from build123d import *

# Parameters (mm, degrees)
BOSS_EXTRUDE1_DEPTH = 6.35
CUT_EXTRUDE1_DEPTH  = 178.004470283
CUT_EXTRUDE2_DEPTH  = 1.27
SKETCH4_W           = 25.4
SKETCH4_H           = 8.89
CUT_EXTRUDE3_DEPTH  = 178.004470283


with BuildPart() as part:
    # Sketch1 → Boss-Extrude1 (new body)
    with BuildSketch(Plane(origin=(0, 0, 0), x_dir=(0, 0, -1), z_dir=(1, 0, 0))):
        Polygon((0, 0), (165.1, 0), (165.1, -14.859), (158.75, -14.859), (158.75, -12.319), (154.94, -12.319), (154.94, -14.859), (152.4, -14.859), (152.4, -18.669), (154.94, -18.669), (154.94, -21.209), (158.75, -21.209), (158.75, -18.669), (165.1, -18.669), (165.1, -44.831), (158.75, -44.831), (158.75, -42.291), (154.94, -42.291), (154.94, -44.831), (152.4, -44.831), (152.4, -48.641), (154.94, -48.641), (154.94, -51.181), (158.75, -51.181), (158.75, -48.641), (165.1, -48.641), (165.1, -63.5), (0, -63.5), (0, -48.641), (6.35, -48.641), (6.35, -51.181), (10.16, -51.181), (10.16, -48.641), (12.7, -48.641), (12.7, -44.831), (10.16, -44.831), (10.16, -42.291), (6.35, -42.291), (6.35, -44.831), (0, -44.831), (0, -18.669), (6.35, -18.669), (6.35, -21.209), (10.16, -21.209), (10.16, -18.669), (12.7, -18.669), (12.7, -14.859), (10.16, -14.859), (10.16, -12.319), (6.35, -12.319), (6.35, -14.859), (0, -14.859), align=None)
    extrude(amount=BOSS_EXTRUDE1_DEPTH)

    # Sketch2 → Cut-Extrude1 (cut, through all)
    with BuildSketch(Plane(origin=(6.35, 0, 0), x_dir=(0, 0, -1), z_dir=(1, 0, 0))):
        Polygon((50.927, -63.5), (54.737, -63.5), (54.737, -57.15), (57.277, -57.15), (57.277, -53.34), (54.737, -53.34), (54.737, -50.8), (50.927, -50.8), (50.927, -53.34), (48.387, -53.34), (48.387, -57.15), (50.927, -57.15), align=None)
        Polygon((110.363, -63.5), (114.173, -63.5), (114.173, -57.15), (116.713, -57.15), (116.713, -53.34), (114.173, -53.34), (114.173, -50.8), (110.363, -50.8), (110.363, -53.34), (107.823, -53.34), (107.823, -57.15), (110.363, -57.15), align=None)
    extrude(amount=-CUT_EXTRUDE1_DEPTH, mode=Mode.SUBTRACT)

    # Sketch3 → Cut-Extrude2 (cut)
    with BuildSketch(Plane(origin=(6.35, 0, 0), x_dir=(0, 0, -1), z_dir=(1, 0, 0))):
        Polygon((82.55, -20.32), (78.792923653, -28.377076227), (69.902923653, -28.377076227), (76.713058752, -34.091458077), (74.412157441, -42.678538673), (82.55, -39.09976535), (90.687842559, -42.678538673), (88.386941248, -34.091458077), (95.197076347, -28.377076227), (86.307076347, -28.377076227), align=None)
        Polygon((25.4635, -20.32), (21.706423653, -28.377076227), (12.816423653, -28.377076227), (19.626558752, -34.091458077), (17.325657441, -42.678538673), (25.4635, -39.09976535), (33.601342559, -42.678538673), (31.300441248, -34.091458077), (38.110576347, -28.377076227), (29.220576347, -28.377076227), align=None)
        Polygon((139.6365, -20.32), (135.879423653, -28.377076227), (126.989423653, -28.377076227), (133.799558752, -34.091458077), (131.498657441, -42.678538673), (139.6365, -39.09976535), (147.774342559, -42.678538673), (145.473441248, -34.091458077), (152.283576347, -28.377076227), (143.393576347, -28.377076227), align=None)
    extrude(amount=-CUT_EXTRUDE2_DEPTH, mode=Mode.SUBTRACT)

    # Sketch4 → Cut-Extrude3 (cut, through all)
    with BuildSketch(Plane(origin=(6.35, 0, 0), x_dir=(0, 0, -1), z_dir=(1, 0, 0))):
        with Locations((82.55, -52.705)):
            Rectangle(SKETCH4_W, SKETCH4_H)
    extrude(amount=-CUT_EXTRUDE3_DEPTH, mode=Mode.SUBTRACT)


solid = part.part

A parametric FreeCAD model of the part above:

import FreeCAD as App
import Part
import Sketcher

V = App.Vector
Q = App.Units.Quantity

doc = App.newDocument("Part")
body = doc.addObject("PartDesign::Body", "Body")

sketch1 = body.newObject("Sketcher::SketchObject", "Sketch")
sketch1.AttachmentSupport = (doc.getObject("YZ_Plane"), [""])
sketch1.MapMode = "FlatFace"
sketch1.addGeometry([
    Part.LineSegment(V(0, -165.1, 0), V(0, 0, 0)),
    Part.LineSegment(V(0, 0, 0), V(-14.9, 0, 0)),
    Part.LineSegment(V(-14.9, 0, 0), V(-14.9, -6.3, 0)),
    Part.LineSegment(V(-14.9, -6.3, 0), V(-12.3, -6.3, 0)),
    Part.LineSegment(V(-12.3, -6.3, 0), V(-12.3, -10.2, 0)),
    Part.LineSegment(V(-12.3, -10.2, 0), V(-14.9, -10.2, 0)),
    Part.LineSegment(V(-14.9, -10.2, 0), V(-14.9, -12.7, 0)),
    Part.LineSegment(V(-14.9, -12.7, 0), V(-18.7, -12.7, 0)),
    Part.LineSegment(V(-18.7, -12.7, 0), V(-18.7, -10.2, 0)),
    Part.LineSegment(V(-18.7, -10.2, 0), V(-21.2, -10.2, 0)),
    Part.LineSegment(V(-21.2, -10.2, 0), V(-21.2, -6.3, 0)),
    Part.LineSegment(V(-21.2, -6.3, 0), V(-18.7, -6.3, 0)),
    Part.LineSegment(V(-18.7, -6.3, 0), V(-18.7, 0, 0)),
    Part.LineSegment(V(-18.7, 0, 0), V(-44.8, 0, 0)),
    Part.LineSegment(V(-44.8, 0, 0), V(-44.8, -6.3, 0)),
    Part.LineSegment(V(-44.8, -6.3, 0), V(-42.3, -6.3, 0)),
    Part.LineSegment(V(-42.3, -6.3, 0), V(-42.3, -10.2, 0)),
    Part.LineSegment(V(-42.3, -10.2, 0), V(-44.8, -10.2, 0)),
    Part.LineSegment(V(-44.8, -10.2, 0), V(-44.8, -12.7, 0)),
    Part.LineSegment(V(-44.8, -12.7, 0), V(-48.6, -12.7, 0)),
    Part.LineSegment(V(-48.6, -12.7, 0), V(-48.6, -10.2, 0)),
    Part.LineSegment(V(-48.6, -10.2, 0), V(-51.2, -10.2, 0)),
    Part.LineSegment(V(-51.2, -10.2, 0), V(-51.2, -6.3, 0)),
    Part.LineSegment(V(-51.2, -6.3, 0), V(-48.6, -6.3, 0)),
    Part.LineSegment(V(-48.6, -6.3, 0), V(-48.6, 0, 0)),
    Part.LineSegment(V(-48.6, 0, 0), V(-63.5, 0, 0)),
    Part.LineSegment(V(-63.5, 0, 0), V(-63.5, -165.1, 0)),
    Part.LineSegment(V(-63.5, -165.1, 0), V(-48.6, -165.1, 0)),
    Part.LineSegment(V(-48.6, -165.1, 0), V(-48.6, -158.8, 0)),
    Part.LineSegment(V(-48.6, -158.8, 0), V(-51.2, -158.8, 0)),
    Part.LineSegment(V(-51.2, -158.8, 0), V(-51.2, -154.9, 0)),
    Part.LineSegment(V(-51.2, -154.9, 0), V(-48.6, -154.9, 0)),
    Part.LineSegment(V(-48.6, -154.9, 0), V(-48.6, -152.4, 0)),
    Part.LineSegment(V(-48.6, -152.4, 0), V(-44.8, -152.4, 0)),
    Part.LineSegment(V(-44.8, -152.4, 0), V(-44.8, -154.9, 0)),
    Part.LineSegment(V(-44.8, -154.9, 0), V(-42.3, -154.9, 0)),
    Part.LineSegment(V(-42.3, -154.9, 0), V(-42.3, -158.8, 0)),
    Part.LineSegment(V(-42.3, -158.8, 0), V(-44.8, -158.8, 0)),
    Part.LineSegment(V(-44.8, -158.8, 0), V(-44.8, -165.1, 0)),
    Part.LineSegment(V(-44.8, -165.1, 0), V(-18.7, -165.1, 0)),
    Part.LineSegment(V(-18.7, -165.1, 0), V(-18.7, -158.8, 0)),
    Part.LineSegment(V(-18.7, -158.8, 0), V(-21.2, -158.8, 0)),
    Part.LineSegment(V(-21.2, -158.8, 0), V(-21.2, -154.9, 0)),
    Part.LineSegment(V(-21.2, -154.9, 0), V(-18.7, -154.9, 0)),
    Part.LineSegment(V(-18.7, -154.9, 0), V(-18.7, -152.4, 0)),
    Part.LineSegment(V(-18.7, -152.4, 0), V(-14.9, -152.4, 0)),
    Part.LineSegment(V(-14.9, -152.4, 0), V(-14.9, -154.9, 0)),
    Part.LineSegment(V(-14.9, -154.9, 0), V(-12.3, -154.9, 0)),
    Part.LineSegment(V(-12.3, -154.9, 0), V(-12.3, -158.8, 0)),
    Part.LineSegment(V(-12.3, -158.8, 0), V(-14.9, -158.8, 0)),
    Part.LineSegment(V(-14.9, -158.8, 0), V(-14.9, -165.1, 0)),
    Part.LineSegment(V(-14.9, -165.1, 0), V(0, -165.1, 0)),
], False)
sketch1.addConstraint([
    Sketcher.Constraint("Coincident", 0, 2, 1, 1),
    Sketcher.Constraint("Coincident", 1, 2, 2, 1),
    Sketcher.Constraint("Coincident", 2, 2, 3, 1),
    Sketcher.Constraint("Coincident", 3, 2, 4, 1),
    Sketcher.Constraint("Coincident", 4, 2, 5, 1),
    Sketcher.Constraint("Coincident", 5, 2, 6, 1),
    Sketcher.Constraint("Coincident", 6, 2, 7, 1),
    Sketcher.Constraint("Coincident", 7, 2, 8, 1),
    Sketcher.Constraint("Coincident", 8, 2, 9, 1),
    Sketcher.Constraint("Coincident", 9, 2, 10, 1),
    Sketcher.Constraint("Coincident", 10, 2, 11, 1),
    Sketcher.Constraint("Coincident", 11, 2, 12, 1),
    Sketcher.Constraint("Coincident", 12, 2, 13, 1),
    Sketcher.Constraint("Coincident", 13, 2, 14, 1),
    Sketcher.Constraint("Coincident", 14, 2, 15, 1),
    Sketcher.Constraint("Coincident", 15, 2, 16, 1),
    Sketcher.Constraint("Coincident", 16, 2, 17, 1),
    Sketcher.Constraint("Coincident", 17, 2, 18, 1),
    Sketcher.Constraint("Coincident", 18, 2, 19, 1),
    Sketcher.Constraint("Coincident", 19, 2, 20, 1),
    Sketcher.Constraint("Coincident", 20, 2, 21, 1),
    Sketcher.Constraint("Coincident", 21, 2, 22, 1),
    Sketcher.Constraint("Coincident", 22, 2, 23, 1),
    Sketcher.Constraint("Coincident", 23, 2, 24, 1),
    Sketcher.Constraint("Coincident", 24, 2, 25, 1),
    Sketcher.Constraint("Coincident", 25, 2, 26, 1),
    Sketcher.Constraint("Coincident", 26, 2, 27, 1),
    Sketcher.Constraint("Coincident", 27, 2, 28, 1),
    Sketcher.Constraint("Coincident", 28, 2, 29, 1),
    Sketcher.Constraint("Coincident", 29, 2, 30, 1),
    Sketcher.Constraint("Coincident", 30, 2, 31, 1),
    Sketcher.Constraint("Coincident", 31, 2, 32, 1),
    Sketcher.Constraint("Coincident", 32, 2, 33, 1),
    Sketcher.Constraint("Coincident", 33, 2, 34, 1),
    Sketcher.Constraint("Coincident", 34, 2, 35, 1),
    Sketcher.Constraint("Coincident", 35, 2, 36, 1),
    Sketcher.Constraint("Coincident", 36, 2, 37, 1),
    Sketcher.Constraint("Coincident", 37, 2, 38, 1),
    Sketcher.Constraint("Coincident", 38, 2, 39, 1),
    Sketcher.Constraint("Coincident", 39, 2, 40, 1),
    Sketcher.Constraint("Coincident", 40, 2, 41, 1),
    Sketcher.Constraint("Coincident", 41, 2, 42, 1),
    Sketcher.Constraint("Coincident", 42, 2, 43, 1),
    Sketcher.Constraint("Coincident", 43, 2, 44, 1),
    Sketcher.Constraint("Coincident", 44, 2, 45, 1),
    Sketcher.Constraint("Coincident", 45, 2, 46, 1),
    Sketcher.Constraint("Coincident", 46, 2, 47, 1),
    Sketcher.Constraint("Coincident", 47, 2, 48, 1),
    Sketcher.Constraint("Coincident", 48, 2, 49, 1),
    Sketcher.Constraint("Coincident", 49, 2, 50, 1),
    Sketcher.Constraint("Coincident", 50, 2, 51, 1),
    Sketcher.Constraint("Coincident", 51, 2, 0, 1),
    Sketcher.Constraint("Vertical", 0),
    Sketcher.Constraint("Horizontal", 1),
    Sketcher.Constraint("Vertical", 2),
    Sketcher.Constraint("Horizontal", 3),
    Sketcher.Constraint("Vertical", 4),
    Sketcher.Constraint("Horizontal", 5),
    Sketcher.Constraint("Vertical", 6),
    Sketcher.Constraint("Horizontal", 7),
    Sketcher.Constraint("Vertical", 8),
    Sketcher.Constraint("Horizontal", 9),
    Sketcher.Constraint("Vertical", 10),
    Sketcher.Constraint("Horizontal", 11),
    Sketcher.Constraint("Vertical", 12),
    Sketcher.Constraint("Horizontal", 13),
    Sketcher.Constraint("Vertical", 14),
    Sketcher.Constraint("Horizontal", 15),
    Sketcher.Constraint("Vertical", 16),
    Sketcher.Constraint("Horizontal", 17),
    Sketcher.Constraint("Vertical", 18),
    Sketcher.Constraint("Horizontal", 19),
    Sketcher.Constraint("Vertical", 20),
    Sketcher.Constraint("Horizontal", 21),
    Sketcher.Constraint("Vertical", 22),
    Sketcher.Constraint("Horizontal", 23),
    Sketcher.Constraint("Vertical", 24),
    Sketcher.Constraint("Horizontal", 25),
    Sketcher.Constraint("Vertical", 26),
    Sketcher.Constraint("Horizontal", 27),
    Sketcher.Constraint("Vertical", 28),
    Sketcher.Constraint("Horizontal", 29),
    Sketcher.Constraint("Vertical", 30),
    Sketcher.Constraint("Horizontal", 31),
    Sketcher.Constraint("Vertical", 32),
    Sketcher.Constraint("Horizontal", 33),
    Sketcher.Constraint("Vertical", 34),
    Sketcher.Constraint("Horizontal", 35),
    Sketcher.Constraint("Vertical", 36),
    Sketcher.Constraint("Horizontal", 37),
    Sketcher.Constraint("Vertical", 38),
    Sketcher.Constraint("Horizontal", 39),
    Sketcher.Constraint("Vertical", 40),
    Sketcher.Constraint("Horizontal", 41),
    Sketcher.Constraint("Vertical", 42),
    Sketcher.Constraint("Horizontal", 43),
    Sketcher.Constraint("Vertical", 44),
    Sketcher.Constraint("Horizontal", 45),
    Sketcher.Constraint("Vertical", 46),
    Sketcher.Constraint("Horizontal", 47),
    Sketcher.Constraint("Vertical", 48),
    Sketcher.Constraint("Horizontal", 49),
    Sketcher.Constraint("Vertical", 50),
    Sketcher.Constraint("Horizontal", 51),
    Sketcher.Constraint("Coincident", 0, 2, -1, 1),
    Sketcher.Constraint("PointOnObject", 12, 2, -1),
    Sketcher.Constraint("PointOnObject", 24, 2, -1),
    Sketcher.Constraint("Horizontal", 5, 2, 8, 2),
    Sketcher.Constraint("Horizontal", 3, 2, 10, 2),
    Sketcher.Constraint("Horizontal", 11, 2, 14, 2),
    Sketcher.Constraint("Horizontal", 9, 2, 16, 2),
    Sketcher.Constraint("Horizontal", 7, 2, 18, 2),
    Sketcher.Constraint("Horizontal", 17, 2, 20, 2),
    Sketcher.Constraint("Horizontal", 15, 2, 22, 2),
    Sketcher.Constraint("Horizontal", 31, 2, 34, 2),
    Sketcher.Constraint("Horizontal", 29, 2, 36, 2),
    Sketcher.Constraint("Horizontal", 27, 2, 38, 2),
    Sketcher.Constraint("Horizontal", 37, 2, 40, 2),
    Sketcher.Constraint("Horizontal", 35, 2, 42, 2),
    Sketcher.Constraint("Horizontal", 33, 2, 44, 2),
    Sketcher.Constraint("Horizontal", 43, 2, 46, 2),
    Sketcher.Constraint("Horizontal", 41, 2, 48, 2),
    Sketcher.Constraint("Horizontal", 39, 2, 50, 2),
    Sketcher.Constraint("Vertical", 2, 2, 5, 2),
    Sketcher.Constraint("Vertical", 8, 2, 11, 2),
    Sketcher.Constraint("Vertical", 14, 2, 17, 2),
    Sketcher.Constraint("Vertical", 20, 2, 23, 2),
    Sketcher.Constraint("Vertical", 24, 2, 27, 2),
    Sketcher.Constraint("Vertical", 22, 2, 29, 2),
    Sketcher.Constraint("Vertical", 28, 2, 31, 2),
    Sketcher.Constraint("Vertical", 18, 2, 33, 2),
    Sketcher.Constraint("Vertical", 16, 2, 35, 2),
    Sketcher.Constraint("Vertical", 34, 2, 37, 2),
    Sketcher.Constraint("Vertical", 12, 2, 39, 2),
    Sketcher.Constraint("Vertical", 10, 2, 41, 2),
    Sketcher.Constraint("Vertical", 40, 2, 43, 2),
    Sketcher.Constraint("Vertical", 6, 2, 45, 2),
    Sketcher.Constraint("Vertical", 4, 2, 47, 2),
    Sketcher.Constraint("Vertical", 46, 2, 49, 2),
    Sketcher.Constraint("Equal", 5, 9),
    Sketcher.Constraint("Equal", 11, 15),
    Sketcher.Constraint("Equal", 7, 19),
    Sketcher.Constraint("Equal", 17, 21),
    Sketcher.Constraint("Equal", 1, 25),
    Sketcher.Constraint("Equal", 45, 4),
    Sketcher.Constraint("Equal", 49, 6),
    Sketcher.Constraint("Equal", 24, 28),
    Sketcher.Constraint("Equal", 22, 30),
    Sketcher.Constraint("Equal", 20, 32),
    Sketcher.Constraint("DistanceX", 3, 1, 3, 2, Q("0.1 in")),
    Sketcher.Constraint("DistanceY", 0, 1, 0, 2, Q("6.5 in")),
    Sketcher.Constraint("DistanceY", 32, 2, -1, 1, Q("6 in")),
    Sketcher.Constraint("DistanceX", 7, 2, 7, 1, Q("0.15 in")),
    Sketcher.Constraint("DistanceX", 13, 2, 13, 1, Q("1.03 in")),
    Sketcher.Constraint("DistanceX", 25, 2, -1, 1, Q("2.5 in")),
])
pad1 = body.newObject("PartDesign::Pad", "Pad")
pad1.Profile = sketch1
pad1.Length = Q("0.25 in")

sketch2 = body.newObject("Sketcher::SketchObject", "Sketch001")
sketch2.AttachmentSupport = (doc.getObject("YZ_Plane"), [""])
sketch2.MapMode = "FlatFace"
sketch2.AttachmentOffset = App.Placement(V(0, 0, 0.25 * 25.4), App.Rotation())
sketch2.addGeometry([
    Part.LineSegment(V(-63.5, -50.9, 0), V(-63.5, -54.7, 0)),
    Part.LineSegment(V(-63.5, -54.7, 0), V(-57.1, -54.7, 0)),
    Part.LineSegment(V(-57.1, -54.7, 0), V(-57.1, -57.3, 0)),
    Part.LineSegment(V(-57.1, -57.3, 0), V(-53.3, -57.3, 0)),
    Part.LineSegment(V(-53.3, -57.3, 0), V(-53.3, -54.7, 0)),
    Part.LineSegment(V(-53.3, -54.7, 0), V(-50.8, -54.7, 0)),
    Part.LineSegment(V(-50.8, -54.7, 0), V(-50.8, -50.9, 0)),
    Part.LineSegment(V(-50.8, -50.9, 0), V(-53.3, -50.9, 0)),
    Part.LineSegment(V(-53.3, -50.9, 0), V(-53.3, -48.4, 0)),
    Part.LineSegment(V(-53.3, -48.4, 0), V(-57.1, -48.4, 0)),
    Part.LineSegment(V(-57.1, -48.4, 0), V(-57.1, -50.9, 0)),
    Part.LineSegment(V(-57.1, -50.9, 0), V(-63.5, -50.9, 0)),
    Part.LineSegment(V(-63.5, -110.4, 0), V(-63.5, -114.2, 0)),
    Part.LineSegment(V(-63.5, -114.2, 0), V(-57.1, -114.2, 0)),
    Part.LineSegment(V(-57.1, -114.2, 0), V(-57.1, -116.7, 0)),
    Part.LineSegment(V(-57.1, -116.7, 0), V(-53.3, -116.7, 0)),
    Part.LineSegment(V(-53.3, -116.7, 0), V(-53.3, -114.2, 0)),
    Part.LineSegment(V(-53.3, -114.2, 0), V(-50.8, -114.2, 0)),
    Part.LineSegment(V(-50.8, -114.2, 0), V(-50.8, -110.4, 0)),
    Part.LineSegment(V(-50.8, -110.4, 0), V(-53.3, -110.4, 0)),
    Part.LineSegment(V(-53.3, -110.4, 0), V(-53.3, -107.8, 0)),
    Part.LineSegment(V(-53.3, -107.8, 0), V(-57.1, -107.8, 0)),
    Part.LineSegment(V(-57.1, -107.8, 0), V(-57.1, -110.4, 0)),
    Part.LineSegment(V(-57.1, -110.4, 0), V(-63.5, -110.4, 0)),
], False)
sketch2.addConstraint([
    Sketcher.Constraint("Coincident", 0, 2, 1, 1),
    Sketcher.Constraint("Coincident", 1, 2, 2, 1),
    Sketcher.Constraint("Coincident", 2, 2, 3, 1),
    Sketcher.Constraint("Coincident", 3, 2, 4, 1),
    Sketcher.Constraint("Coincident", 4, 2, 5, 1),
    Sketcher.Constraint("Coincident", 5, 2, 6, 1),
    Sketcher.Constraint("Coincident", 6, 2, 7, 1),
    Sketcher.Constraint("Coincident", 7, 2, 8, 1),
    Sketcher.Constraint("Coincident", 8, 2, 9, 1),
    Sketcher.Constraint("Coincident", 9, 2, 10, 1),
    Sketcher.Constraint("Coincident", 10, 2, 11, 1),
    Sketcher.Constraint("Coincident", 11, 2, 0, 1),
    Sketcher.Constraint("Coincident", 12, 2, 13, 1),
    Sketcher.Constraint("Coincident", 13, 2, 14, 1),
    Sketcher.Constraint("Coincident", 14, 2, 15, 1),
    Sketcher.Constraint("Coincident", 15, 2, 16, 1),
    Sketcher.Constraint("Coincident", 16, 2, 17, 1),
    Sketcher.Constraint("Coincident", 17, 2, 18, 1),
    Sketcher.Constraint("Coincident", 18, 2, 19, 1),
    Sketcher.Constraint("Coincident", 19, 2, 20, 1),
    Sketcher.Constraint("Coincident", 20, 2, 21, 1),
    Sketcher.Constraint("Coincident", 21, 2, 22, 1),
    Sketcher.Constraint("Coincident", 22, 2, 23, 1),
    Sketcher.Constraint("Coincident", 23, 2, 12, 1),
    Sketcher.Constraint("Vertical", 0),
    Sketcher.Constraint("Horizontal", 1),
    Sketcher.Constraint("Vertical", 2),
    Sketcher.Constraint("Horizontal", 3),
    Sketcher.Constraint("Vertical", 4),
    Sketcher.Constraint("Horizontal", 5),
    Sketcher.Constraint("Vertical", 6),
    Sketcher.Constraint("Horizontal", 7),
    Sketcher.Constraint("Vertical", 8),
    Sketcher.Constraint("Horizontal", 9),
    Sketcher.Constraint("Vertical", 10),
    Sketcher.Constraint("Horizontal", 11),
    Sketcher.Constraint("Vertical", 12),
    Sketcher.Constraint("Horizontal", 13),
    Sketcher.Constraint("Vertical", 14),
    Sketcher.Constraint("Horizontal", 15),
    Sketcher.Constraint("Vertical", 16),
    Sketcher.Constraint("Horizontal", 17),
    Sketcher.Constraint("Vertical", 18),
    Sketcher.Constraint("Horizontal", 19),
    Sketcher.Constraint("Vertical", 20),
    Sketcher.Constraint("Horizontal", 21),
    Sketcher.Constraint("Vertical", 22),
    Sketcher.Constraint("Horizontal", 23),
    Sketcher.Constraint("Horizontal", 1, 2, 4, 2),
    Sketcher.Constraint("Horizontal", 7, 2, 10, 2),
    Sketcher.Constraint("Horizontal", 13, 2, 16, 2),
    Sketcher.Constraint("Horizontal", 19, 2, 22, 2),
    Sketcher.Constraint("Vertical", 4, 2, 7, 2),
    Sketcher.Constraint("Vertical", 2, 2, 9, 2),
    Sketcher.Constraint("Vertical", 11, 2, 12, 2),
    Sketcher.Constraint("Vertical", 10, 2, 13, 2),
    Sketcher.Constraint("Vertical", 8, 2, 15, 2),
    Sketcher.Constraint("Vertical", 6, 2, 17, 2),
    Sketcher.Constraint("Vertical", 16, 2, 19, 2),
    Sketcher.Constraint("Vertical", 14, 2, 21, 2),
    Sketcher.Constraint("Equal", 21, 0),
    Sketcher.Constraint("Equal", 19, 2),
    Sketcher.Constraint("Equal", 4, 8),
    Sketcher.Constraint("Equal", 6, 12),
    Sketcher.Constraint("Equal", 10, 14),
    Sketcher.Constraint("Equal", 16, 20),
    Sketcher.Constraint("DistanceX", 5, 1, 5, 2, Q("0.1 in")),
    Sketcher.Constraint("DistanceX", 5, 2, -1, 1, Q("2 in")),
    Sketcher.Constraint("DistanceX", 1, 1, 1, 2, Q("0.25 in")),
    Sketcher.Constraint("DistanceX", 3, 1, 3, 2, Q("0.15 in")),
    Sketcher.Constraint("DistanceY", 12, 2, 2, 2, Q("2.24 in")),
    Sketcher.Constraint("DistanceY", 0, 2, -1, 1, Q("2.155 in")),
])
pocket1 = body.newObject("PartDesign::Pocket", "Pocket")
pocket1.Profile = sketch2
pocket1.Type = "ThroughAll"

sketch3 = body.newObject("Sketcher::SketchObject", "Sketch002")
sketch3.AttachmentSupport = (doc.getObject("YZ_Plane"), [""])
sketch3.MapMode = "FlatFace"
sketch3.AttachmentOffset = App.Placement(V(0, 0, 0.25 * 25.4), App.Rotation())
sketch3.addGeometry([
    Part.LineSegment(V(-20, -83, 0), V(-28, -79, 0)),
    Part.LineSegment(V(-28, -79, 0), V(-28, -70, 0)),
    Part.LineSegment(V(-28, -70, 0), V(-34, -77, 0)),
    Part.LineSegment(V(-34, -77, 0), V(-43, -74, 0)),
    Part.LineSegment(V(-43, -74, 0), V(-39, -83, 0)),
    Part.LineSegment(V(-39, -83, 0), V(-43, -91, 0)),
    Part.LineSegment(V(-43, -91, 0), V(-34, -88, 0)),
    Part.LineSegment(V(-34, -88, 0), V(-28, -95, 0)),
    Part.LineSegment(V(-28, -95, 0), V(-28, -86, 0)),
    Part.LineSegment(V(-28, -86, 0), V(-20, -83, 0)),
    Part.LineSegment(V(-20, -25, 0), V(-28, -22, 0)),
    Part.LineSegment(V(-28, -22, 0), V(-28, -13, 0)),
    Part.LineSegment(V(-28, -13, 0), V(-34, -20, 0)),
    Part.LineSegment(V(-34, -20, 0), V(-43, -17, 0)),
    Part.LineSegment(V(-43, -17, 0), V(-39, -25, 0)),
    Part.LineSegment(V(-39, -25, 0), V(-43, -34, 0)),
    Part.LineSegment(V(-43, -34, 0), V(-34, -31, 0)),
    Part.LineSegment(V(-34, -31, 0), V(-28, -38, 0)),
    Part.LineSegment(V(-28, -38, 0), V(-28, -29, 0)),
    Part.LineSegment(V(-28, -29, 0), V(-20, -25, 0)),
    Part.LineSegment(V(-20, -140, 0), V(-28, -136, 0)),
    Part.LineSegment(V(-28, -136, 0), V(-28, -127, 0)),
    Part.LineSegment(V(-28, -127, 0), V(-34, -134, 0)),
    Part.LineSegment(V(-34, -134, 0), V(-43, -131, 0)),
    Part.LineSegment(V(-43, -131, 0), V(-39, -140, 0)),
    Part.LineSegment(V(-39, -140, 0), V(-43, -148, 0)),
    Part.LineSegment(V(-43, -148, 0), V(-34, -145, 0)),
    Part.LineSegment(V(-34, -145, 0), V(-28, -152, 0)),
    Part.LineSegment(V(-28, -152, 0), V(-28, -143, 0)),
    Part.LineSegment(V(-28, -143, 0), V(-20, -140, 0)),
], False)
sketch3.addConstraint([
    Sketcher.Constraint("Coincident", 0, 2, 1, 1),
    Sketcher.Constraint("Coincident", 1, 2, 2, 1),
    Sketcher.Constraint("Coincident", 2, 2, 3, 1),
    Sketcher.Constraint("Coincident", 3, 2, 4, 1),
    Sketcher.Constraint("Coincident", 4, 2, 5, 1),
    Sketcher.Constraint("Coincident", 5, 2, 6, 1),
    Sketcher.Constraint("Coincident", 6, 2, 7, 1),
    Sketcher.Constraint("Coincident", 7, 2, 8, 1),
    Sketcher.Constraint("Coincident", 8, 2, 9, 1),
    Sketcher.Constraint("Coincident", 9, 2, 0, 1),
    Sketcher.Constraint("Coincident", 10, 2, 11, 1),
    Sketcher.Constraint("Coincident", 11, 2, 12, 1),
    Sketcher.Constraint("Coincident", 12, 2, 13, 1),
    Sketcher.Constraint("Coincident", 13, 2, 14, 1),
    Sketcher.Constraint("Coincident", 14, 2, 15, 1),
    Sketcher.Constraint("Coincident", 15, 2, 16, 1),
    Sketcher.Constraint("Coincident", 16, 2, 17, 1),
    Sketcher.Constraint("Coincident", 17, 2, 18, 1),
    Sketcher.Constraint("Coincident", 18, 2, 19, 1),
    Sketcher.Constraint("Coincident", 19, 2, 10, 1),
    Sketcher.Constraint("Coincident", 20, 2, 21, 1),
    Sketcher.Constraint("Coincident", 21, 2, 22, 1),
    Sketcher.Constraint("Coincident", 22, 2, 23, 1),
    Sketcher.Constraint("Coincident", 23, 2, 24, 1),
    Sketcher.Constraint("Coincident", 24, 2, 25, 1),
    Sketcher.Constraint("Coincident", 25, 2, 26, 1),
    Sketcher.Constraint("Coincident", 26, 2, 27, 1),
    Sketcher.Constraint("Coincident", 27, 2, 28, 1),
    Sketcher.Constraint("Coincident", 28, 2, 29, 1),
    Sketcher.Constraint("Coincident", 29, 2, 20, 1),
    Sketcher.Constraint("Vertical", 1),
    Sketcher.Constraint("Vertical", 8),
    Sketcher.Constraint("Vertical", 11),
    Sketcher.Constraint("Vertical", 18),
    Sketcher.Constraint("Vertical", 21),
    Sketcher.Constraint("Vertical", 28),
    Sketcher.Constraint("Parallel", 0, 10),
    Sketcher.Constraint("Parallel", 2, 12),
    Sketcher.Constraint("Parallel", 3, 13),
    Sketcher.Constraint("Parallel", 4, 14),
    Sketcher.Constraint("Parallel", 5, 15),
    Sketcher.Constraint("Parallel", 6, 16),
    Sketcher.Constraint("Parallel", 7, 17),
    Sketcher.Constraint("Parallel", 9, 19),
    Sketcher.Constraint("Parallel", 10, 20),
    Sketcher.Constraint("Parallel", 12, 22),
    Sketcher.Constraint("Parallel", 13, 23),
    Sketcher.Constraint("Parallel", 14, 24),
    Sketcher.Constraint("Parallel", 15, 25),
    Sketcher.Constraint("Parallel", 16, 26),
    Sketcher.Constraint("Parallel", 17, 27),
    Sketcher.Constraint("Parallel", 19, 29),
    Sketcher.Constraint("Horizontal", 4, 2, 9, 2),
    Sketcher.Constraint("Horizontal", 14, 2, 19, 2),
    Sketcher.Constraint("Horizontal", 24, 2, 29, 2),
    Sketcher.Constraint("Vertical", 3, 2, 5, 2),
    Sketcher.Constraint("Vertical", 2, 2, 6, 2),
    Sketcher.Constraint("Vertical", 1, 2, 7, 2),
    Sketcher.Constraint("Vertical", 8, 2, 10, 2),
    Sketcher.Constraint("Vertical", 6, 2, 12, 2),
    Sketcher.Constraint("Vertical", 5, 2, 13, 2),
    Sketcher.Constraint("Vertical", 4, 2, 14, 2),
    Sketcher.Constraint("Vertical", 13, 2, 15, 2),
    Sketcher.Constraint("Vertical", 12, 2, 16, 2),
    Sketcher.Constraint("Vertical", 11, 2, 17, 2),
    Sketcher.Constraint("Vertical", 9, 2, 19, 2),
    Sketcher.Constraint("Vertical", 18, 2, 20, 2),
    Sketcher.Constraint("Vertical", 16, 2, 22, 2),
    Sketcher.Constraint("Vertical", 15, 2, 23, 2),
    Sketcher.Constraint("Vertical", 14, 2, 24, 2),
    Sketcher.Constraint("Vertical", 23, 2, 25, 2),
    Sketcher.Constraint("Vertical", 22, 2, 26, 2),
    Sketcher.Constraint("Vertical", 21, 2, 27, 2),
    Sketcher.Constraint("Vertical", 19, 2, 29, 2),
    Sketcher.Constraint("Equal", 1, 8),
    Sketcher.Constraint("Equal", 0, 2),
    Sketcher.Constraint("Equal", 2, 3),
    Sketcher.Constraint("Equal", 3, 4),
    Sketcher.Constraint("Equal", 4, 5),
    Sketcher.Constraint("Equal", 5, 6),
    Sketcher.Constraint("Equal", 6, 7),
    Sketcher.Constraint("Angle", 0, Q("155 deg")),
    Sketcher.Constraint("Angle", 2, Q("-130 deg")),
    Sketcher.Constraint("Angle", 3, Q("165 deg")),
    Sketcher.Constraint("DistanceY", 1, 1, 1, 2, Q("0.35 in")),
    Sketcher.Constraint("DistanceX", 9, 2, -1, 1, Q("0.8 in")),
    Sketcher.Constraint("Distance", 0, Q("0.35 in")),
    Sketcher.Constraint("DistanceY", 4, 2, -1, 1, Q("3.25 in")),
    Sketcher.Constraint("DistanceY", 14, 2, -1, 1, Q("1.0025 in")),
    Sketcher.Constraint("DistanceY", 24, 2, -1, 1, Q("5.4975 in")),
])
pocket2 = body.newObject("PartDesign::Pocket", "Pocket001")
pocket2.Profile = sketch3
pocket2.Length = Q("0.05 in")

sketch4 = body.newObject("Sketcher::SketchObject", "Sketch003")
sketch4.AttachmentSupport = (doc.getObject("YZ_Plane"), [""])
sketch4.MapMode = "FlatFace"
sketch4.AttachmentOffset = App.Placement(V(0, 0, 0.25 * 25.4), App.Rotation())
sketch4.addGeometry([
    Part.LineSegment(V(-48, -70, 0), V(-57, -70, 0)),
    Part.LineSegment(V(-57, -70, 0), V(-57, -95, 0)),
    Part.LineSegment(V(-57, -95, 0), V(-48, -95, 0)),
    Part.LineSegment(V(-48, -95, 0), V(-48, -70, 0)),
], False)
sketch4.addConstraint([
    Sketcher.Constraint("Coincident", 0, 2, 1, 1),
    Sketcher.Constraint("Coincident", 1, 2, 2, 1),
    Sketcher.Constraint("Coincident", 2, 2, 3, 1),
    Sketcher.Constraint("Coincident", 3, 2, 0, 1),
    Sketcher.Constraint("Horizontal", 0),
    Sketcher.Constraint("Vertical", 1),
    Sketcher.Constraint("Horizontal", 2),
    Sketcher.Constraint("Vertical", 3),
    Sketcher.Constraint("DistanceY", 1, 2, 1, 1, Q("1 in")),
    Sketcher.Constraint("DistanceX", 0, 2, 0, 1, Q("0.35 in")),
    Sketcher.Constraint("DistanceX", 2, 2, -1, 1, Q("1.9 in")),
    Sketcher.Constraint("DistanceY", 0, 2, -1, 1, Q("2.75 in")),
])
pocket3 = body.newObject("PartDesign::Pocket", "Pocket002")
pocket3.Profile = sketch4
pocket3.Type = "ThroughAll"

doc.recompute()
